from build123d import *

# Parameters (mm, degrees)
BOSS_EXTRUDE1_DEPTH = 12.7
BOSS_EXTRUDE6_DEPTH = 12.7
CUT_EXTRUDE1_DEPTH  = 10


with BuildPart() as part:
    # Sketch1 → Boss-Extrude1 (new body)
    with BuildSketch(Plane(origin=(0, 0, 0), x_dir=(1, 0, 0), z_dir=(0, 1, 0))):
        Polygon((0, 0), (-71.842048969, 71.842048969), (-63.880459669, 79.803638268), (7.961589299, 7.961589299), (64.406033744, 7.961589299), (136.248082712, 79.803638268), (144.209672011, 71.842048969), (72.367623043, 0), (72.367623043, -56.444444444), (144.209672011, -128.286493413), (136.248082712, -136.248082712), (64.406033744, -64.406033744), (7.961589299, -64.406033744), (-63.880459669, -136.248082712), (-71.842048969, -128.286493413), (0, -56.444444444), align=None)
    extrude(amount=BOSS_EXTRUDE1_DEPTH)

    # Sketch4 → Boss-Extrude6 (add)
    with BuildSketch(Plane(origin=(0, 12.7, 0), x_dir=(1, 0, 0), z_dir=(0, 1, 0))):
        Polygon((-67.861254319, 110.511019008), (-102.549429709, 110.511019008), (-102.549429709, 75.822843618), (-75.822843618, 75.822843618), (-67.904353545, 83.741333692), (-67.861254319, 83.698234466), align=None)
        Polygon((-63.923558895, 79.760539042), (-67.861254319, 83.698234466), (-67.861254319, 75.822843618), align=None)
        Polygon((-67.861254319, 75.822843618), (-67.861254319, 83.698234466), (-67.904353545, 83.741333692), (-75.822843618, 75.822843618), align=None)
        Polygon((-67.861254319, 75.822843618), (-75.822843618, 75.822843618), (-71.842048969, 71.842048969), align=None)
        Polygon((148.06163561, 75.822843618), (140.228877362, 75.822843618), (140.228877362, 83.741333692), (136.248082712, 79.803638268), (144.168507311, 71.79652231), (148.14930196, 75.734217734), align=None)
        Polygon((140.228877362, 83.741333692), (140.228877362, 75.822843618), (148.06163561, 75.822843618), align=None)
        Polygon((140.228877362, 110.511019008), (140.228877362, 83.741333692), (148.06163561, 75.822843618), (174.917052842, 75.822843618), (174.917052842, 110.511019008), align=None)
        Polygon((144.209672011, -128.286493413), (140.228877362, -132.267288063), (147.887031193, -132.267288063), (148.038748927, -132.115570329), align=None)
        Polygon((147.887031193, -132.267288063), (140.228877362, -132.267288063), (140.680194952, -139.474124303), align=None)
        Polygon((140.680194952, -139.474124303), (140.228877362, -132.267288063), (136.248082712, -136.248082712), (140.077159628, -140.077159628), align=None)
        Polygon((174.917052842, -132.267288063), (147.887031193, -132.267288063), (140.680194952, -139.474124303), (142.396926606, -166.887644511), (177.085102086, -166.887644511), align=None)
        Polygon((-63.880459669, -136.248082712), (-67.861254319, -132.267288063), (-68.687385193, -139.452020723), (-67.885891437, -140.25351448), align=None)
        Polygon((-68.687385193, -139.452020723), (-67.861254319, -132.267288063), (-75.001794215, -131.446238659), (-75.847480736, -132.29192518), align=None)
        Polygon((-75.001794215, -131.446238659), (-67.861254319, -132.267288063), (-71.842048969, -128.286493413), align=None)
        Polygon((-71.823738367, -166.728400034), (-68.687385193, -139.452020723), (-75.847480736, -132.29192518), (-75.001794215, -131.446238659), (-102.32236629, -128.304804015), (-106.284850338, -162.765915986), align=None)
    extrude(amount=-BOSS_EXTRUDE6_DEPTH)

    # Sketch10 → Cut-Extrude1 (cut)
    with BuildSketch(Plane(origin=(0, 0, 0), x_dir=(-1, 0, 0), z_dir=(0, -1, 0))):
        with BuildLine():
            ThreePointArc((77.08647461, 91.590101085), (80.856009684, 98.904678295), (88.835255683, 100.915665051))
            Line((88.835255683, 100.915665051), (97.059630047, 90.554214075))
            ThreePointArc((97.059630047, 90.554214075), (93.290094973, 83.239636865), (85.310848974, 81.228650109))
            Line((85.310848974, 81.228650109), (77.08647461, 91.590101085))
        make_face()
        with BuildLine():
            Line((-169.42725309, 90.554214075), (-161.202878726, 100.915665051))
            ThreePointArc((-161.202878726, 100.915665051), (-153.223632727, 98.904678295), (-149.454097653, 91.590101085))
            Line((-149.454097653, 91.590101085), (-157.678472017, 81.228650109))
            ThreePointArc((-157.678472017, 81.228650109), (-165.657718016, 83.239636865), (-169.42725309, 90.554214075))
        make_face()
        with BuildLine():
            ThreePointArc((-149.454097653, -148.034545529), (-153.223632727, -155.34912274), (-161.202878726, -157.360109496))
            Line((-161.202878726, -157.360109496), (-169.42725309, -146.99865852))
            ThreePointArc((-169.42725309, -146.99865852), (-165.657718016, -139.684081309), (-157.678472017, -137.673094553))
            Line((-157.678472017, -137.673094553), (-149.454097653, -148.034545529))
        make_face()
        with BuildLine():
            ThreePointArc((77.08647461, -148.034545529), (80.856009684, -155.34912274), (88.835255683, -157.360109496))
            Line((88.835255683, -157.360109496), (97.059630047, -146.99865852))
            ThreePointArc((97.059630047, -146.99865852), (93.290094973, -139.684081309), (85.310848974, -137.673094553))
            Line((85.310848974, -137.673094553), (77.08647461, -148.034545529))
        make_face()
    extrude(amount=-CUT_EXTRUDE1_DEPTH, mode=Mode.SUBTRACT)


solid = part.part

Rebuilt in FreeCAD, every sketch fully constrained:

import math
import FreeCAD as App
import Part
import Sketcher

doc = App.newDocument("Part")
body = doc.addObject("PartDesign::Body", "Body")

sketch1 = body.newObject("Sketcher::SketchObject", "Sketch")
sketch1.AttachmentSupport = (doc.getObject("XZ_Plane"), [""])
sketch1.MapMode = "FlatFace"
sketch1.addGeometry(Part.LineSegment(App.Vector(-72, -72, 0), App.Vector(0, 0, 0)), False)
sketch1.addGeometry(Part.LineSegment(App.Vector(0, 0, 0), App.Vector(0, 56, 0)), False)
sketch1.addGeometry(Part.LineSegment(App.Vector(0, 56, 0), App.Vector(-72, 128, 0)), False)
sketch1.addGeometry(Part.LineSegment(App.Vector(-72, 128, 0), App.Vector(-64, 136, 0)), False)
sketch1.addGeometry(Part.LineSegment(App.Vector(-64, 136, 0), App.Vector(8, 64, 0)), False)
sketch1.addGeometry(Part.LineSegment(App.Vector(8, 64, 0), App.Vector(64, 64, 0)), False)
sketch1.addGeometry(Part.LineSegment(App.Vector(64, 64, 0), App.Vector(136, 136, 0)), False)
sketch1.addGeometry(Part.LineSegment(App.Vector(136, 136, 0), App.Vector(144, 128, 0)), False)
sketch1.addGeometry(Part.LineSegment(App.Vector(144, 128, 0), App.Vector(72, 56, 0)), False)
sketch1.addGeometry(Part.LineSegment(App.Vector(72, 56, 0), App.Vector(72, 0, 0)), False)
sketch1.addGeometry(Part.LineSegment(App.Vector(72, 0, 0), App.Vector(144, -72, 0)), False)
sketch1.addGeometry(Part.LineSegment(App.Vector(144, -72, 0), App.Vector(136, -80, 0)), False)
sketch1.addGeometry(Part.LineSegment(App.Vector(136, -80, 0), App.Vector(64, -8, 0)), False)
sketch1.addGeometry(Part.LineSegment(App.Vector(64, -8, 0), App.Vector(8, -8, 0)), False)
sketch1.addGeometry(Part.LineSegment(App.Vector(8, -8, 0), App.Vector(-64, -80, 0)), False)
sketch1.addGeometry(Part.LineSegment(App.Vector(-64, -80, 0), App.Vector(-72, -72, 0)), False)
sketch1.addConstraint(Sketcher.Constraint("Coincident", 0, 2, 1, 1))
sketch1.addConstraint(Sketcher.Constraint("Coincident", 1, 2, 2, 1))
sketch1.addConstraint(Sketcher.Constraint("Coincident", 2, 2, 3, 1))
sketch1.addConstraint(Sketcher.Constraint("Coincident", 3, 2, 4, 1))
sketch1.addConstraint(Sketcher.Constraint("Coincident", 4, 2, 5, 1))
sketch1.addConstraint(Sketcher.Constraint("Coincident", 5, 2, 6, 1))
sketch1.addConstraint(Sketcher.Constraint("Coincident", 6, 2, 7, 1))
sketch1.addConstraint(Sketcher.Constraint("Coincident", 7, 2, 8, 1))
sketch1.addConstraint(Sketcher.Constraint("Coincident", 8, 2, 9, 1))
sketch1.addConstraint(Sketcher.Constraint("Coincident", 9, 2, 10, 1))
sketch1.addConstraint(Sketcher.Constraint("Coincident", 10, 2, 11, 1))
sketch1.addConstraint(Sketcher.Constraint("Coincident", 11, 2, 12, 1))
sketch1.addConstraint(Sketcher.Constraint("Coincident", 12, 2, 13, 1))
sketch1.addConstraint(Sketcher.Constraint("Coincident", 13, 2, 14, 1))
sketch1.addConstraint(Sketcher.Constraint("Coincident", 14, 2, 15, 1))
sketch1.addConstraint(Sketcher.Constraint("Coincident", 15, 2, 0, 1))
sketch1.addConstraint(Sketcher.Constraint("Vertical", 1))
sketch1.addConstraint(Sketcher.Constraint("Horizontal", 5))
sketch1.addConstraint(Sketcher.Constraint("Vertical", 9))
sketch1.addConstraint(Sketcher.Constraint("Horizontal", 13))
sketch1.addConstraint(Sketcher.Constraint("Coincident", 0, 2, -1, 1))
sketch1.addConstraint(Sketcher.Constraint("PointOnObject", 9, 2, -1))
sketch1.addConstraint(Sketcher.Constraint("Perpendicular", 0, 2))
sketch1.addConstraint(Sketcher.Constraint("Perpendicular", 2, 3))
sketch1.addConstraint(Sketcher.Constraint("Perpendicular", 3, 4))
sketch1.addConstraint(Sketcher.Constraint("Perpendicular", 4, 6))
sketch1.addConstraint(Sketcher.Constraint("Perpendicular", 6, 7))
sketch1.addConstraint(Sketcher.Constraint("Perpendicular", 7, 8))
sketch1.addConstraint(Sketcher.Constraint("Perpendicular", 8, 10))
sketch1.addConstraint(Sketcher.Constraint("Perpendicular", 10, 11))
sketch1.addConstraint(Sketcher.Constraint("Perpendicular", 11, 12))
sketch1.addConstraint(Sketcher.Constraint("Perpendicular", 12, 14))
sketch1.addConstraint(Sketcher.Constraint("Perpendicular", 14, 15))
sketch1.addConstraint(Sketcher.Constraint("Horizontal", 3, 2, 6, 2))
sketch1.addConstraint(Sketcher.Constraint("Horizontal", 2, 2, 7, 2))
sketch1.addConstraint(Sketcher.Constraint("Horizontal", 1, 2, 8, 2))
sketch1.addConstraint(Sketcher.Constraint("Horizontal", 11, 2, 14, 2))
sketch1.addConstraint(Sketcher.Constraint("Horizontal", 10, 2, 15, 2))
sketch1.addConstraint(Sketcher.Constraint("Vertical", 7, 2, 10, 2))
sketch1.addConstraint(Sketcher.Constraint("Vertical", 6, 2, 11, 2))
sketch1.addConstraint(Sketcher.Constraint("Vertical", 5, 2, 12, 2))
sketch1.addConstraint(Sketcher.Constraint("Vertical", 4, 2, 13, 2))
sketch1.addConstraint(Sketcher.Constraint("Equal", 13, 1))
sketch1.addConstraint(Sketcher.Constraint("Equal", 2, 4))
sketch1.addConstraint(Sketcher.Constraint("Distance", 0, 101.6))
sketch1.addConstraint(Sketcher.Constraint("DistanceX", 5, 1, 5, 2, 56.444444))
sketch1.addConstraint(Sketcher.Constraint("DistanceX", 3, 2, -1, 1, 63.88046))
pad1 = body.newObject("PartDesign::Pad", "Pad")
pad1.Profile = sketch1
pad1.Length = 12.7
pad1.Reversed = True

sketch2 = body.newObject("Sketcher::SketchObject", "Sketch001")
sketch2.AttachmentSupport = (doc.getObject("XZ_Plane"), [""])
sketch2.MapMode = "FlatFace"
sketch2.AttachmentOffset = App.Placement(App.Vector(0, 0, -12.7), App.Rotation())
sketch2.addGeometry(Part.LineSegment(App.Vector(-67.86, -110.51, 0), App.Vector(-102.55, -110.51, 0)), False)
sketch2.addGeometry(Part.LineSegment(App.Vector(-102.55, -110.51, 0), App.Vector(-102.55, -75.82, 0)), False)
sketch2.addGeometry(Part.LineSegment(App.Vector(-102.55, -75.82, 0), App.Vector(-75.82, -75.82, 0)), False)
sketch2.addGeometry(Part.LineSegment(App.Vector(-75.82, -75.82, 0), App.Vector(-71.84, -71.84, 0)), False)
sketch2.addGeometry(Part.LineSegment(App.Vector(-71.84, -71.84, 0), App.Vector(-67.86, -75.82, 0)), False)
sketch2.addGeometry(Part.LineSegment(App.Vector(-67.86, -75.82, 0), App.Vector(-63.92, -79.76, 0)), False)
sketch2.addGeometry(Part.LineSegment(App.Vector(-63.92, -79.76, 0), App.Vector(-67.86, -83.7, 0)), False)
sketch2.addGeometry(Part.LineSegment(App.Vector(-67.86, -83.7, 0), App.Vector(-67.86, -110.51, 0)), False)
sketch2.addGeometry(Part.LineSegment(App.Vector(140.23, -83.74, 0), App.Vector(136.25, -79.8, 0)), False)
sketch2.addGeometry(Part.LineSegment(App.Vector(136.25, -79.8, 0), App.Vector(144.17, -71.8, 0)), False)
sketch2.addGeometry(Part.LineSegment(App.Vector(144.17, -71.8, 0), App.Vector(148.15, -75.73, 0)), False)
sketch2.addGeometry(Part.LineSegment(App.Vector(148.15, -75.73, 0), App.Vector(148.06, -75.82, 0)), False)
sketch2.addGeometry(Part.LineSegment(App.Vector(148.06, -75.82, 0), App.Vector(174.92, -75.82, 0)), False)
sketch2.addGeometry(Part.LineSegment(App.Vector(174.92, -75.82, 0), App.Vector(174.92, -110.51, 0)), False)
sketch2.addGeometry(Part.LineSegment(App.Vector(174.92, -110.51, 0), App.Vector(140.23, -110.51, 0)), False)
sketch2.addGeometry(Part.LineSegment(App.Vector(140.23, -110.51, 0), App.Vector(140.23, -83.74, 0)), False)
sketch2.addGeometry(Part.LineSegment(App.Vector(144.21, 128.29, 0), App.Vector(140.23, 132.27, 0)), False)
sketch2.addGeometry(Part.LineSegment(App.Vector(140.23, 132.27, 0), App.Vector(136.25, 136.25, 0)), False)
sketch2.addGeometry(Part.LineSegment(App.Vector(136.25, 136.25, 0), App.Vector(140.08, 140.08, 0)), False)
sketch2.addGeometry(Part.LineSegment(App.Vector(140.08, 140.08, 0), App.Vector(140.68, 139.47, 0)), False)
sketch2.addGeometry(Part.LineSegment(App.Vector(140.68, 139.47, 0), App.Vector(142.4, 166.89, 0)), False)
sketch2.addGeometry(Part.LineSegment(App.Vector(142.4, 166.89, 0), App.Vector(177.09, 166.89, 0)), False)
sketch2.addGeometry(Part.LineSegment(App.Vector(177.09, 166.89, 0), App.Vector(174.92, 132.27, 0)), False)
sketch2.addGeometry(Part.LineSegment(App.Vector(174.92, 132.27, 0), App.Vector(147.89, 132.27, 0)), False)
sketch2.addGeometry(Part.LineSegment(App.Vector(147.89, 132.27, 0), App.Vector(148.04, 132.12, 0)), False)
sketch2.addGeometry(Part.LineSegment(App.Vector(148.04, 132.12, 0), App.Vector(144.21, 128.29, 0)), False)
sketch2.addGeometry(Part.LineSegment(App.Vector(-63.88, 136.25, 0), App.Vector(-67.86, 132.27, 0)), False)
sketch2.addGeometry(Part.LineSegment(App.Vector(-67.86, 132.27, 0), App.Vector(-71.84, 128.29, 0)), False)
sketch2.addGeometry(Part.LineSegment(App.Vector(-71.84, 128.29, 0), App.Vector(-75, 131.45, 0)), False)
sketch2.addGeometry(Part.LineSegment(App.Vector(-75, 131.45, 0), App.Vector(-102.32, 128.3, 0)), False)
sketch2.addGeometry(Part.LineSegment(App.Vector(-102.32, 128.3, 0), App.Vector(-106.28, 162.77, 0)), False)
sketch2.addGeometry(Part.LineSegment(App.Vector(-106.28, 162.77, 0), App.Vector(-71.82, 166.73, 0)), False)
sketch2.addGeometry(Part.LineSegment(App.Vector(-71.82, 166.73, 0), App.Vector(-68.69, 139.45, 0)), False)
sketch2.addGeometry(Part.LineSegment(App.Vector(-68.69, 139.45, 0), App.Vector(-67.89, 140.25, 0)), False)
sketch2.addGeometry(Part.LineSegment(App.Vector(-67.89, 140.25, 0), App.Vector(-63.88, 136.25, 0)), False)
sketch2.addConstraint(Sketcher.Constraint("Coincident", 0, 2, 1, 1))
sketch2.addConstraint(Sketcher.Constraint("Coincident", 1, 2, 2, 1))
sketch2.addConstraint(Sketcher.Constraint("Coincident", 2, 2, 3, 1))
sketch2.addConstraint(Sketcher.Constraint("Coincident", 3, 2, 4, 1))
sketch2.addConstraint(Sketcher.Constraint("Coincident", 4, 2, 5, 1))
sketch2.addConstraint(Sketcher.Constraint("Coincident", 5, 2, 6, 1))
sketch2.addConstraint(Sketcher.Constraint("Coincident", 6, 2, 7, 1))
sketch2.addConstraint(Sketcher.Constraint("Coincident", 7, 2, 0, 1))
sketch2.addConstraint(Sketcher.Constraint("Coincident", 8, 2, 9, 1))
sketch2.addConstraint(Sketcher.Constraint("Coincident", 9, 2, 10, 1))
sketch2.addConstraint(Sketcher.Constraint("Coincident", 10, 2, 11, 1))
sketch2.addConstraint(Sketcher.Constraint("Coincident", 11, 2, 12, 1))
sketch2.addConstraint(Sketcher.Constraint("Coincident", 12, 2, 13, 1))
sketch2.addConstraint(Sketcher.Constraint("Coincident", 13, 2, 14, 1))
sketch2.addConstraint(Sketcher.Constraint("Coincident", 14, 2, 15, 1))
sketch2.addConstraint(Sketcher.Constraint("Coincident", 15, 2, 8, 1))
sketch2.addConstraint(Sketcher.Constraint("Coincident", 16, 2, 17, 1))
sketch2.addConstraint(Sketcher.Constraint("Coincident", 17, 2, 18, 1))
sketch2.addConstraint(Sketcher.Constraint("Coincident", 18, 2, 19, 1))
sketch2.addConstraint(Sketcher.Constraint("Coincident", 19, 2, 20, 1))
sketch2.addConstraint(Sketcher.Constraint("Coincident", 20, 2, 21, 1))
sketch2.addConstraint(Sketcher.Constraint("Coincident", 21, 2, 22, 1))
sketch2.addConstraint(Sketcher.Constraint("Coincident", 22, 2, 23, 1))
sketch2.addConstraint(Sketcher.Constraint("Coincident", 23, 2, 24, 1))
sketch2.addConstraint(Sketcher.Constraint("Coincident", 24, 2, 25, 1))
sketch2.addConstraint(Sketcher.Constraint("Coincident", 25, 2, 16, 1))
sketch2.addConstraint(Sketcher.Constraint("Coincident", 26, 2, 27, 1))
sketch2.addConstraint(Sketcher.Constraint("Coincident", 27, 2, 28, 1))
sketch2.addConstraint(Sketcher.Constraint("Coincident", 28, 2, 29, 1))
sketch2.addConstraint(Sketcher.Constraint("Coincident", 29, 2, 30, 1))
sketch2.addConstraint(Sketcher.Constraint("Coincident", 30, 2, 31, 1))
sketch2.addConstraint(Sketcher.Constraint("Coincident", 31, 2, 32, 1))
sketch2.addConstraint(Sketcher.Constraint("Coincident", 32, 2, 33, 1))
sketch2.addConstraint(Sketcher.Constraint("Coincident", 33, 2, 34, 1))
sketch2.addConstraint(Sketcher.Constraint("Coincident", 34, 2, 26, 1))
sketch2.addConstraint(Sketcher.Constraint("Horizontal", 0))
sketch2.addConstraint(Sketcher.Constraint("Vertical", 1))
sketch2.addConstraint(Sketcher.Constraint("Horizontal", 2))
sketch2.addConstraint(Sketcher.Constraint("Vertical", 7))
sketch2.addConstraint(Sketcher.Constraint("Horizontal", 12))
sketch2.addConstraint(Sketcher.Constraint("Vertical", 13))
sketch2.addConstraint(Sketcher.Constraint("Horizontal", 14))
sketch2.addConstraint(Sketcher.Constraint("Vertical", 15))
sketch2.addConstraint(Sketcher.Constraint("Horizontal", 21))
sketch2.addConstraint(Sketcher.Constraint("Horizontal", 23))
sketch2.addConstraint(Sketcher.Constraint("Perpendicular", 3, 4))
sketch2.addConstraint(Sketcher.Constraint("Parallel", 4, 5))
sketch2.addConstraint(Sketcher.Constraint("Perpendicular", 5, 6))
sketch2.addConstraint(Sketcher.Constraint("Perpendicular", 8, 9))
sketch2.addConstraint(Sketcher.Constraint("Perpendicular", 9, 10))
sketch2.addConstraint(Sketcher.Constraint("Perpendicular", 10, 11))
sketch2.addConstraint(Sketcher.Constraint("Perpendicular", 6, 16))
sketch2.addConstraint(Sketcher.Constraint("Parallel", 16, 17))
sketch2.addConstraint(Sketcher.Constraint("Perpendicular", 17, 18))
sketch2.addConstraint(Sketcher.Constraint("Perpendicular", 18, 19))
sketch2.addConstraint(Sketcher.Constraint("Parallel", 20, 22))
sketch2.addConstraint(Sketcher.Constraint("Parallel", 19, 24))
sketch2.addConstraint(Sketcher.Constraint("Perpendicular", 24, 25))
sketch2.addConstraint(Sketcher.Constraint("Parallel", 25, 26))
sketch2.addConstraint(Sketcher.Constraint("Parallel", 26, 27))
sketch2.addConstraint(Sketcher.Constraint("Perpendicular", 27, 28))
sketch2.addConstraint(Sketcher.Constraint("Perpendicular", 29, 30))
sketch2.addConstraint(Sketcher.Constraint("Perpendicular", 30, 31))
sketch2.addConstraint(Sketcher.Constraint("Perpendicular", 31, 32))
sketch2.addConstraint(Sketcher.Constraint("Perpendicular", 28, 33))
sketch2.addConstraint(Sketcher.Constraint("Perpendicular", 33, 34))
sketch2.addConstraint(Sketcher.Constraint("Horizontal", 2, 2, 4, 2))
sketch2.addConstraint(Sketcher.Constraint("Horizontal", 4, 2, 11, 2))
sketch2.addConstraint(Sketcher.Constraint("Horizontal", 7, 2, 13, 2))
sketch2.addConstraint(Sketcher.Constraint("Horizontal", 16, 2, 22, 2))
sketch2.addConstraint(Sketcher.Constraint("Horizontal", 23, 2, 26, 2))
sketch2.addConstraint(Sketcher.Constraint("Horizontal", 25, 2, 27, 2))
sketch2.addConstraint(Sketcher.Constraint("Horizontal", 17, 2, 34, 2))
sketch2.addConstraint(Sketcher.Constraint("Vertical", 4, 2, 6, 2))
sketch2.addConstraint(Sketcher.Constraint("Vertical", 15, 2, 16, 2))
sketch2.addConstraint(Sketcher.Constraint("Vertical", 8, 2, 17, 2))
sketch2.addConstraint(Sketcher.Constraint("Vertical", 13, 2, 22, 2))
sketch2.addConstraint(Sketcher.Constraint("Vertical", 7, 2, 26, 2))
sketch2.addConstraint(Sketcher.Constraint("Vertical", 3, 2, 27, 2))
sketch2.addConstraint(Sketcher.Constraint("Equal", 0, 14))
sketch2.addConstraint(Sketcher.Constraint("Equal", 14, 21))
sketch2.addConstraint(Sketcher.Constraint("Equal", 21, 1))
sketch2.addConstraint(Sketcher.Constraint("Equal", 3, 4))
sketch2.addConstraint(Sketcher.Constraint("Equal", 8, 10))
sketch2.addConstraint(Sketcher.Constraint("Equal", 16, 17))
sketch2.addConstraint(Sketcher.Constraint("Equal", 18, 25))
sketch2.addConstraint(Sketcher.Constraint("Equal", 22, 30))
sketch2.addConstraint(Sketcher.Constraint("Equal", 30, 31))
sketch2.addConstraint(Sketcher.Constraint("Distance", 8, 5.599301))
sketch2.addConstraint(Sketcher.Constraint("DistanceX", 23, 2, 23, 1, 27.030022))
sketch2.addConstraint(Sketcher.Constraint("DistanceX", -1, 1, 10, 2, 148.149302))
sketch2.addConstraint(Sketcher.Constraint("DistanceY", -1, 1, 31, 2, 166.7284))
sketch2.addConstraint(Sketcher.Constraint("DistanceY", 8, 2, 5, 2, 0.043099))
sketch2.addConstraint(Sketcher.Constraint("DistanceY", 13, 2, 10, 2, 34.776801))
sketch2.addConstraint(Sketcher.Constraint("DistanceY", 10, 2, 17, 2, 211.9823))
sketch2.addConstraint(Sketcher.Constraint("DistanceX", 30, 2, 27, 2, 34.442801))
sketch2.addConstraint(Sketcher.Constraint("Distance", 9, 11.262639))
sketch2.addConstraint(Sketcher.Constraint("Distance", 11, 0.124659))
sketch2.addConstraint(Sketcher.Constraint("Distance", 19, 0.852821))
sketch2.addConstraint(Sketcher.Constraint("Distance", 20, 27.467222))
sketch2.addConstraint(Sketcher.Constraint("Distance", 24, 0.214561))
sketch2.addConstraint(Sketcher.Constraint("DistanceX", 0, 2, -1, 1, 102.54943))
sketch2.addConstraint(Sketcher.Constraint("DistanceY", 0, 2, -1, 1, 110.511019))
sketch2.addConstraint(Sketcher.Constraint("DistanceY", -1, 1, 28, 2, 131.446239))
sketch2.addConstraint(Sketcher.Constraint("DistanceY", -1, 1, 32, 2, 139.452021))
pad2 = body.newObject("PartDesign::Pad", "Pad001")
pad2.Profile = sketch2
pad2.Length = 12.7

sketch3 = body.newObject("Sketcher::SketchObject", "Sketch002")
sketch3.AttachmentSupport = (doc.getObject("XZ_Plane"), [""])
sketch3.MapMode = "FlatFace"
sketch3.addGeometry(Part.ArcOfCircle(Part.Circle(App.Vector(-87, -91, 0), App.Vector(0, 0, 1), 10), math.radians(-100), math.radians(-3)), False)
sketch3.addGeometry(Part.LineSegment(App.Vector(-77, -92, 0), App.Vector(-85, -81, 0)), False)
sketch3.addGeometry(Part.ArcOfCircle(Part.Circle(App.Vector(-87, -91, 0), App.Vector(0, 0, 1), 10), math.radians(80), math.radians(177)), False)
sketch3.addGeometry(Part.LineSegment(App.Vector(-97, -91, 0), App.Vector(-89, -101, 0)), False)
sketch3.addGeometry(Part.LineSegment(App.Vector(161, -101, 0), App.Vector(169, -91, 0)), False)
sketch3.addGeometry(Part.ArcOfCircle(Part.Circle(App.Vector(159, -91, 0), App.Vector(0, 0, 1), 10), math.radians(3), math.radians(100)), False)
sketch3.addGeometry(Part.LineSegment(App.Vector(158, -81, 0), App.Vector(149, -92, 0)), False)
sketch3.addGeometry(Part.ArcOfCircle(Part.Circle(App.Vector(159, -91, 0), App.Vector(0, 0, 1), 10), math.radians(-177), math.radians(-80)), False)
sketch3.addGeometry(Part.ArcOfCircle(Part.Circle(App.Vector(159, 148, 0), App.Vector(0, 0, 1), 10), math.radians(80), math.radians(177)), False)
sketch3.addGeometry(Part.LineSegment(App.Vector(149, 148, 0), App.Vector(158, 138, 0)), False)
sketch3.addGeometry(Part.ArcOfCircle(Part.Circle(App.Vector(159, 148, 0), App.Vector(0, 0, 1), 10), math.radians(-100), math.radians(-3)), False)
sketch3.addGeometry(Part.LineSegment(App.Vector(169, 147, 0), App.Vector(161, 157, 0)), False)
sketch3.addGeometry(Part.ArcOfCircle(Part.Circle(App.Vector(-87, 148, 0), App.Vector(0, 0, 1), 10), math.radians(3), math.radians(100)), False)
sketch3.addGeometry(Part.LineSegment(App.Vector(-89, 157, 0), App.Vector(-97, 147, 0)), False)
sketch3.addGeometry(Part.ArcOfCircle(Part.Circle(App.Vector(-87, 148, 0), App.Vector(0, 0, 1), 10), math.radians(-177), math.radians(-80)), False)
sketch3.addGeometry(Part.LineSegment(App.Vector(-85, 138, 0), App.Vector(-77, 148, 0)), False)
sketch3.addConstraint(Sketcher.Constraint("Coincident", 0, 2, 1, 1))
sketch3.addConstraint(Sketcher.Constraint("Coincident", 1, 2, 2, 1))
sketch3.addConstraint(Sketcher.Constraint("Coincident", 2, 2, 3, 1))
sketch3.addConstraint(Sketcher.Constraint("Coincident", 3, 2, 0, 1))
sketch3.addConstraint(Sketcher.Constraint("Coincident", 4, 2, 5, 1))
sketch3.addConstraint(Sketcher.Constraint("Coincident", 5, 2, 6, 1))
sketch3.addConstraint(Sketcher.Constraint("Coincident", 6, 2, 7, 1))
sketch3.addConstraint(Sketcher.Constraint("Coincident", 7, 2, 4, 1))
sketch3.addConstraint(Sketcher.Constraint("Coincident", 8, 2, 9, 1))
sketch3.addConstraint(Sketcher.Constraint("Coincident", 9, 2, 10, 1))
sketch3.addConstraint(Sketcher.Constraint("Coincident", 10, 2, 11, 1))
sketch3.addConstraint(Sketcher.Constraint("Coincident", 11, 2, 8, 1))
sketch3.addConstraint(Sketcher.Constraint("Coincident", 12, 2, 13, 1))
sketch3.addConstraint(Sketcher.Constraint("Coincident", 13, 2, 14, 1))
sketch3.addConstraint(Sketcher.Constraint("Coincident", 14, 2, 15, 1))
sketch3.addConstraint(Sketcher.Constraint("Coincident", 15, 2, 12, 1))
sketch3.addConstraint(Sketcher.Constraint("Coincident", 2, 3, 0, 3))
sketch3.addConstraint(Sketcher.Constraint("Coincident", 7, 3, 5, 3))
sketch3.addConstraint(Sketcher.Constraint("Coincident", 10, 3, 8, 3))
sketch3.addConstraint(Sketcher.Constraint("Coincident", 14, 3, 12, 3))
sketch3.addConstraint(Sketcher.Constraint("Equal", 0, 2))
sketch3.addConstraint(Sketcher.Constraint("Equal", 2, 5))
sketch3.addConstraint(Sketcher.Constraint("Equal", 5, 7))
sketch3.addConstraint(Sketcher.Constraint("Equal", 7, 8))
sketch3.addConstraint(Sketcher.Constraint("Equal", 8, 10))
sketch3.addConstraint(Sketcher.Constraint("Equal", 10, 12))
sketch3.addConstraint(Sketcher.Constraint("Equal", 12, 14))
sketch3.addConstraint(Sketcher.Constraint("Parallel", 1, 3))
sketch3.addConstraint(Sketcher.Constraint("Parallel", 4, 6))
sketch3.addConstraint(Sketcher.Constraint("Parallel", 3, 9))
sketch3.addConstraint(Sketcher.Constraint("Parallel", 9, 11))
sketch3.addConstraint(Sketcher.Constraint("Parallel", 6, 13))
sketch3.addConstraint(Sketcher.Constraint("Parallel", 13, 15))
sketch3.addConstraint(Sketcher.Constraint("Horizontal", 2, 3, 5, 3))
sketch3.addConstraint(Sketcher.Constraint("Horizontal", 10, 3, 12, 3))
sketch3.addConstraint(Sketcher.Constraint("Horizontal", 2, 2, 4, 2))
sketch3.addConstraint(Sketcher.Constraint("Horizontal", 1, 2, 5, 2))
sketch3.addConstraint(Sketcher.Constraint("Horizontal", 0, 2, 6, 2))
sketch3.addConstraint(Sketcher.Constraint("Horizontal", 11, 2, 12, 2))
sketch3.addConstraint(Sketcher.Constraint("Horizontal", 9, 2, 14, 2))
sketch3.addConstraint(Sketcher.Constraint("Vertical", 7, 3, 8, 3))
sketch3.addConstraint(Sketcher.Constraint("Vertical", 2, 3, 12, 3))
sketch3.addConstraint(Sketcher.Constraint("Vertical", 6, 2, 8, 2))
sketch3.addConstraint(Sketcher.Constraint("Vertical", 4, 2, 10, 2))
sketch3.addConstraint(Sketcher.Constraint("Equal", 1, 3))
sketch3.addConstraint(Sketcher.Constraint("Radius", 0, 10.0))
sketch3.addConstraint(Sketcher.Constraint("DistanceY", 0, 2, -1, 1, 91.590101))
sketch3.addConstraint(Sketcher.Constraint("DistanceX", 1, 2, -1, 1, 85.310849))
sketch3.addConstraint(Sketcher.Constraint("DistanceY", 1, 2, -1, 1, 81.22865))
sketch3.addConstraint(Sketcher.Constraint("DistanceX", 2, 2, -1, 1, 97.05963))
sketch3.addConstraint(Sketcher.Constraint("DistanceX", -1, 1, 7, 2, 161.202879))
sketch3.addConstraint(Sketcher.Constraint("DistanceY", -1, 1, 10, 2, 146.998659))
pocket1 = body.newObject("PartDesign::Pocket", "Pocket")
pocket1.Profile = sketch3
pocket1.Length = 10

doc.recompute()
